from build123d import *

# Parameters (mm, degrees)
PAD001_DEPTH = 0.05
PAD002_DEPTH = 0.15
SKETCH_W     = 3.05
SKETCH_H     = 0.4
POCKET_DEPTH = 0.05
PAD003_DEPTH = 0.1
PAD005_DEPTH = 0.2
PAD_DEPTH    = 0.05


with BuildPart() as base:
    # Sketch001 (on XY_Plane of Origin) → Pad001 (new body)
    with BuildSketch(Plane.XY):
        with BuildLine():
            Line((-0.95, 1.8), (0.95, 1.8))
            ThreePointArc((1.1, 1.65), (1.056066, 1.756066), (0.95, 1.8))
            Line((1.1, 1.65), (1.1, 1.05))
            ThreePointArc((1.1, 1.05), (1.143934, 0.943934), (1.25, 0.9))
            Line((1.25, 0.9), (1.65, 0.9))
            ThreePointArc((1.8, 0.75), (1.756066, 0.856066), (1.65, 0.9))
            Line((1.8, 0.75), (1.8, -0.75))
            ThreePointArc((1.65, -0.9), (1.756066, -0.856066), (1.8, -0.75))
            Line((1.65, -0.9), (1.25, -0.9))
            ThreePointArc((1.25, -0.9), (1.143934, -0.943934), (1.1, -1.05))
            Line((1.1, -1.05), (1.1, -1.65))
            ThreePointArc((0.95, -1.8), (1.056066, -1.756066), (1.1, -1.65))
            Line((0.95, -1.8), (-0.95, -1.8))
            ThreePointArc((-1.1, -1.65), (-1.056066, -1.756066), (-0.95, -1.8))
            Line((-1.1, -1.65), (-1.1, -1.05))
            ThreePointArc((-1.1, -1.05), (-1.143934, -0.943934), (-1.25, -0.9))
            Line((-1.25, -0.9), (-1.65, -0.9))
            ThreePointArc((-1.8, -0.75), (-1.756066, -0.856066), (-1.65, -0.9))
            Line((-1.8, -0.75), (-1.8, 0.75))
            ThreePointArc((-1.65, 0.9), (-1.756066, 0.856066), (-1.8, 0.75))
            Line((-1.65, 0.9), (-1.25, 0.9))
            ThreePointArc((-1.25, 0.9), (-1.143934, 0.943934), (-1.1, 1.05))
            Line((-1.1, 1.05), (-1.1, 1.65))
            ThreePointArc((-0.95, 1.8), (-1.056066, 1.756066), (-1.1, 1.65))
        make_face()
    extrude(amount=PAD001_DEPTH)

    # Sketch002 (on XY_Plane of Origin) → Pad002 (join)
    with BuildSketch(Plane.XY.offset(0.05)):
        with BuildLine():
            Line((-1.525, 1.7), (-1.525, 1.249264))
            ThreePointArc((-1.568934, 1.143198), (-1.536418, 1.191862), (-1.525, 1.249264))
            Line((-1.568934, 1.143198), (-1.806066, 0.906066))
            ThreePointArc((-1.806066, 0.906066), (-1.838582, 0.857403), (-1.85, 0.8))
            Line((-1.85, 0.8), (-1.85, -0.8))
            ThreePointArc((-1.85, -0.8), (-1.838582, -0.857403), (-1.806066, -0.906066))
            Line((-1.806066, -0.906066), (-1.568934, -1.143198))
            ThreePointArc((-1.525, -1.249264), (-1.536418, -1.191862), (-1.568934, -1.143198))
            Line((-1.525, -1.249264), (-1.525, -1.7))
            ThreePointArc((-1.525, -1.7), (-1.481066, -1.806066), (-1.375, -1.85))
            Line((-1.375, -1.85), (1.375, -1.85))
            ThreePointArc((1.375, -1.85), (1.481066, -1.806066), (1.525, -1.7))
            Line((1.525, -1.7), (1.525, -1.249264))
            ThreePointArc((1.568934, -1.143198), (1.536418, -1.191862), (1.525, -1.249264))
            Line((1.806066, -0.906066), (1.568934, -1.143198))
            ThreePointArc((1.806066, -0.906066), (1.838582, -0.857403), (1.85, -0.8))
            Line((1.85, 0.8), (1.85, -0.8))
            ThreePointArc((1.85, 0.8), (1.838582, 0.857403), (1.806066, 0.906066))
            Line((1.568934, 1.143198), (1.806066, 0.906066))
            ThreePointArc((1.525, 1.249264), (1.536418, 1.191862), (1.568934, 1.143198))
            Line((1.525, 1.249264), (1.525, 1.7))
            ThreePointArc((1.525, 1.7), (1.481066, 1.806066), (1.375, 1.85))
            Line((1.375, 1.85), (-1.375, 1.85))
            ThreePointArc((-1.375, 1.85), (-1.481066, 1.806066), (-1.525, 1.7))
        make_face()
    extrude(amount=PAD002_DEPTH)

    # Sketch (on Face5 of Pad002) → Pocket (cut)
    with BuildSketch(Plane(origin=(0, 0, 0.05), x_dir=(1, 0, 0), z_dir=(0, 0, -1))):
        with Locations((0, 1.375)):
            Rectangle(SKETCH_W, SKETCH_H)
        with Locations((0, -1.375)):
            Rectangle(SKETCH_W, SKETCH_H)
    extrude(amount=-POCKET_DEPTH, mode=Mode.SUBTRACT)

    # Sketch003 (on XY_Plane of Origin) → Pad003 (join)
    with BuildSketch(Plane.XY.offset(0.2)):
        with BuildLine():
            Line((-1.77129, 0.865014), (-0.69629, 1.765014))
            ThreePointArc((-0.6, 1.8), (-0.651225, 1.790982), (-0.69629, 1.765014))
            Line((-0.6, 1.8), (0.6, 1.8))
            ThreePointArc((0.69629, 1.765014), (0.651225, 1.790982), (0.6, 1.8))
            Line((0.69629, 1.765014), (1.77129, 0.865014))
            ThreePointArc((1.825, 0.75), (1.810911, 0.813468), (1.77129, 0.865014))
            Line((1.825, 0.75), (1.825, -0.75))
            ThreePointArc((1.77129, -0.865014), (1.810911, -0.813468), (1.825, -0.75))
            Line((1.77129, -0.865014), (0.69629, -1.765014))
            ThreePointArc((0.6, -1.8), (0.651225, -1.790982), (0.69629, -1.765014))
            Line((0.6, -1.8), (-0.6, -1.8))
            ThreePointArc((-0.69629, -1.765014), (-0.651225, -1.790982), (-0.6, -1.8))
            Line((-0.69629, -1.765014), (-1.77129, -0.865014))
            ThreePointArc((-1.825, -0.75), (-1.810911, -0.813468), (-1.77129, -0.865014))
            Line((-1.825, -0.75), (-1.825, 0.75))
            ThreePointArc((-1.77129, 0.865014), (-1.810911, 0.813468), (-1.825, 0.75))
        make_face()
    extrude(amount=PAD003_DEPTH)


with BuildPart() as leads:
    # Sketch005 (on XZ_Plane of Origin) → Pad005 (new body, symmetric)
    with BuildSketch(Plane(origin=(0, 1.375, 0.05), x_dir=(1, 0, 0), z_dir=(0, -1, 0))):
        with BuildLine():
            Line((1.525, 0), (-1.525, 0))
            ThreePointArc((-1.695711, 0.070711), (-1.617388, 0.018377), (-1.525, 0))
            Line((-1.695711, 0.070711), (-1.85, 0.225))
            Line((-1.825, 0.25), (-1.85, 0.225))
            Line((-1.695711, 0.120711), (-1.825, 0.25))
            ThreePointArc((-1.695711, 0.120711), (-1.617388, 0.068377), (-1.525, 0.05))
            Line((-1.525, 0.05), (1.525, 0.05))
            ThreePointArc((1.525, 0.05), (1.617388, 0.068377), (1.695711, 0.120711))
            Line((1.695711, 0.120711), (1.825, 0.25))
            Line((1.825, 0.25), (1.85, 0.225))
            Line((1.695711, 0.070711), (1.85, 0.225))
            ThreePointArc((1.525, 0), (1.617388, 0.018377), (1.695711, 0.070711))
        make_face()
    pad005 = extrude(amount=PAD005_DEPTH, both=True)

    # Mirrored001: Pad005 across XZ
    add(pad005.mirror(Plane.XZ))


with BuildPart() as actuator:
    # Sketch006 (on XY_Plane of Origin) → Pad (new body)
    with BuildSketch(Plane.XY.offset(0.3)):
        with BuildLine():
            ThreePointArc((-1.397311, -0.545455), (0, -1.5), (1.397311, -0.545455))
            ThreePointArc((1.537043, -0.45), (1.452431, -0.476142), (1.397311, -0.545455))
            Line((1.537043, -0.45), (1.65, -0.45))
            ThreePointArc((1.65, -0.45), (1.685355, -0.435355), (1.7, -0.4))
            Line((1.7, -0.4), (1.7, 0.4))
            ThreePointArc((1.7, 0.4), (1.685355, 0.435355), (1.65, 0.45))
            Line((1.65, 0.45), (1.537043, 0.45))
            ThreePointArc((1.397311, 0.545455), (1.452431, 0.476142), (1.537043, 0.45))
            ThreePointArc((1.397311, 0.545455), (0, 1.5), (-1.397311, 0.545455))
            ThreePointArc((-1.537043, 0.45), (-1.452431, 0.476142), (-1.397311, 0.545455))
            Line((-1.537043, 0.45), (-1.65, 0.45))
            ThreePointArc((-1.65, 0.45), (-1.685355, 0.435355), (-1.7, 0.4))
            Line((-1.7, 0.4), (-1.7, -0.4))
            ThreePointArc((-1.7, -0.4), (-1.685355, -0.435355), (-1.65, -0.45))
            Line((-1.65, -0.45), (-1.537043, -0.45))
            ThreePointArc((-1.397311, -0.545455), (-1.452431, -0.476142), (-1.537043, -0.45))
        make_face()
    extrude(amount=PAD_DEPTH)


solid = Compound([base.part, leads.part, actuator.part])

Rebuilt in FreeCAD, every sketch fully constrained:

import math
import FreeCAD as App
import Part
import Sketcher

V = App.Vector


def add_polygon(sketch, points):
    """Adds a closed chain of lines whose ends are joined by coincident constraints."""
    first, n = sketch.GeometryCount, len(points)
    for a, b in zip(points, points[1:] + points[:1]):
        sketch.addGeometry(Part.LineSegment(App.Vector(*a, 0), App.Vector(*b, 0)), False)
    for i in range(n):
        sketch.addConstraint(Sketcher.Constraint("Coincident", first + i, 2, first + (i + 1) % n, 1))

doc = App.newDocument("Part")
params = doc.addObject("Spreadsheet::Sheet", "Params")
for row, (alias, value) in enumerate([
    ("sketch1_radius", "0.15 mm"),
    ("sketch1_width", "1.9 mm"),
    ("sketch1_width2", "0.4 mm"),
    ("sketch1_height", "0.6 mm"),
    ("sketch1_height2", "1.5 mm"),
    ("pad1_length", "0.05 mm"),
    ("sketch2_radius", "0.150001 mm"),
    ("sketch2_height", "1.6 mm"),
    ("sketch2_width", "2.75 mm"),
    ("pad2_length", "0.15 mm"),
    ("sketch3_height", "0.4 mm"),
    ("sketch3_width", "3.05 mm"),
    ("pocket1_length", "0.05 mm"),
    ("sketch4_radius", "0.15 mm"),
    ("sketch4_width", "1.2 mm"),
    ("sketch4_height", "1.5 mm"),
    ("pad3_length", "0.1 mm"),
    ("sketch5_width", "3.05 mm"),
    ("pad4_length", "0.4 mm"),
    ("sketch6_radius", "1.5 mm"),
    ("sketch6_radius2", "0.150002 mm"),
    ("sketch6_radius3", "0.050001 mm"),
    ("sketch6_height", "0.8 mm"),
    ("pad5_length", "0.05 mm"),
], start=1):
    params.set(f"A{row}", alias)
    params.set(f"B{row}", "=" + value)
    params.setAlias(f"B{row}", alias)

body = doc.addObject("PartDesign::Body", "Body")

sketch1 = body.newObject("Sketcher::SketchObject", "Sketch")
sketch1.AttachmentSupport = (doc.getObject("XY_Plane"), [""])
sketch1.MapMode = "FlatFace"
sketch1.addGeometry([
    Part.LineSegment(V(0.95, 1.8, 0), V(-0.95, 1.8, 0)),
    Part.ArcOfCircle(Part.Circle(V(-0.95, 1.65, 0), V(0, 0, 1), 0.15), math.radians(90.000023), math.radians(179.999977)),
    Part.LineSegment(V(-1.1, 1.65, 0), V(-1.1, 1.05, 0)),
    Part.ArcOfCircle(Part.Circle(V(-1.25, 1.05, 0), V(0, 0, 1), 0.15), math.radians(-89.999977), math.radians(-0.000023)),
    Part.LineSegment(V(-1.25, 0.9, 0), V(-1.65, 0.9, 0)),
    Part.ArcOfCircle(Part.Circle(V(-1.65, 0.75, 0), V(0, 0, 1), 0.15), math.radians(90.000023), math.radians(179.999977)),
    Part.LineSegment(V(-1.8, 0.75, 0), V(-1.8, -0.75, 0)),
    Part.ArcOfCircle(Part.Circle(V(-1.65, -0.75, 0), V(0, 0, 1), 0.15), math.radians(-179.999977), math.radians(-90.000023)),
    Part.LineSegment(V(-1.65, -0.9, 0), V(-1.25, -0.9, 0)),
    Part.ArcOfCircle(Part.Circle(V(-1.25, -1.05, 0), V(0, 0, 1), 0.15), math.radians(0.000023), math.radians(89.999977)),
    Part.LineSegment(V(-1.1, -1.05, 0), V(-1.1, -1.65, 0)),
    Part.ArcOfCircle(Part.Circle(V(-0.95, -1.65, 0), V(0, 0, 1), 0.15), math.radians(-179.999977), math.radians(-90.000023)),
    Part.LineSegment(V(-0.95, -1.8, 0), V(0.95, -1.8, 0)),
    Part.ArcOfCircle(Part.Circle(V(0.95, -1.65, 0), V(0, 0, 1), 0.15), math.radians(-89.999977), math.radians(-0.000023)),
    Part.LineSegment(V(1.1, -1.65, 0), V(1.1, -1.05, 0)),
    Part.ArcOfCircle(Part.Circle(V(1.25, -1.05, 0), V(0, 0, 1), 0.15), math.radians(90.000023), math.radians(179.999977)),
    Part.LineSegment(V(1.25, -0.9, 0), V(1.65, -0.9, 0)),
    Part.ArcOfCircle(Part.Circle(V(1.65, -0.75, 0), V(0, 0, 1), 0.15), math.radians(-89.999977), math.radians(-0.000023)),
    Part.LineSegment(V(1.8, -0.75, 0), V(1.8, 0.75, 0)),
    Part.ArcOfCircle(Part.Circle(V(1.65, 0.75, 0), V(0, 0, 1), 0.15), math.radians(0.000023), math.radians(89.999977)),
    Part.LineSegment(V(1.65, 0.9, 0), V(1.25, 0.9, 0)),
    Part.ArcOfCircle(Part.Circle(V(1.25, 1.05, 0), V(0, 0, 1), 0.15), math.radians(-179.999977), math.radians(-90.000023)),
    Part.LineSegment(V(1.1, 1.05, 0), V(1.1, 1.65, 0)),
    Part.ArcOfCircle(Part.Circle(V(0.95, 1.65, 0), V(0, 0, 1), 0.15), math.radians(0.000023), math.radians(89.999977)),
], False)
sketch1.addConstraint([
    Sketcher.Constraint("Tangent", 0, 2, 1, 1),
    Sketcher.Constraint("Tangent", 1, 2, 2, 1),
    Sketcher.Constraint("Tangent", 2, 2, 3, 2),
    Sketcher.Constraint("Tangent", 3, 1, 4, 1),
    Sketcher.Constraint("Tangent", 4, 2, 5, 1),
    Sketcher.Constraint("Tangent", 5, 2, 6, 1),
    Sketcher.Constraint("Tangent", 6, 2, 7, 1),
    Sketcher.Constraint("Tangent", 7, 2, 8, 1),
    Sketcher.Constraint("Tangent", 8, 2, 9, 2),
    Sketcher.Constraint("Tangent", 9, 1, 10, 1),
    Sketcher.Constraint("Tangent", 10, 2, 11, 1),
    Sketcher.Constraint("Tangent", 11, 2, 12, 1),
    Sketcher.Constraint("Tangent", 12, 2, 13, 1),
    Sketcher.Constraint("Tangent", 13, 2, 14, 1),
    Sketcher.Constraint("Tangent", 14, 2, 15, 2),
    Sketcher.Constraint("Tangent", 15, 1, 16, 1),
    Sketcher.Constraint("Tangent", 16, 2, 17, 1),
    Sketcher.Constraint("Tangent", 17, 2, 18, 1),
    Sketcher.Constraint("Tangent", 18, 2, 19, 1),
    Sketcher.Constraint("Tangent", 19, 2, 20, 1),
    Sketcher.Constraint("Tangent", 20, 2, 21, 2),
    Sketcher.Constraint("Tangent", 21, 1, 22, 1),
    Sketcher.Constraint("Tangent", 22, 2, 23, 1),
    Sketcher.Constraint("Tangent", 23, 2, 0, 1),
    Sketcher.Constraint("Horizontal", 0),
    Sketcher.Constraint("Vertical", 2),
    Sketcher.Constraint("Horizontal", 4),
    Sketcher.Constraint("Vertical", 6),
    Sketcher.Constraint("Horizontal", 8),
    Sketcher.Constraint("Vertical", 10),
    Sketcher.Constraint("Horizontal", 12),
    Sketcher.Constraint("Vertical", 14),
    Sketcher.Constraint("Horizontal", 16),
    Sketcher.Constraint("Vertical", 18),
    Sketcher.Constraint("Horizontal", 20),
    Sketcher.Constraint("Vertical", 22),
    Sketcher.Constraint("Equal", 1, 3),
    Sketcher.Constraint("Equal", 3, 5),
    Sketcher.Constraint("Equal", 5, 7),
    Sketcher.Constraint("Equal", 7, 9),
    Sketcher.Constraint("Equal", 9, 11),
    Sketcher.Constraint("Equal", 11, 13),
    Sketcher.Constraint("Equal", 13, 15),
    Sketcher.Constraint("Equal", 15, 17),
    Sketcher.Constraint("Equal", 17, 19),
    Sketcher.Constraint("Equal", 19, 21),
    Sketcher.Constraint("Equal", 21, 23),
    Sketcher.Constraint("Symmetric", 1, 3, 13, 3, -1, 1),
    Sketcher.Constraint("Symmetric", 5, 3, 17, 3, -1, 1),
    Sketcher.Constraint("Symmetric", 9, 3, 21, 3, -1, 1),
    Sketcher.Constraint("Symmetric", 9, 3, 15, 3, -2),
    Sketcher.Constraint("Radius", 1, 0.15),
    Sketcher.Constraint("DistanceX", 0, 2, 0, 1, 1.9),
    Sketcher.Constraint("DistanceX", 4, 2, 4, 1, 0.4),
    Sketcher.Constraint("DistanceY", 2, 2, 2, 1, 0.6),
    Sketcher.Constraint("DistanceY", 6, 2, 6, 1, 1.5),
])
sketch1.setExpression("Constraints[51]", "Params.sketch1_radius")
sketch1.setExpression("Constraints[52]", "Params.sketch1_width")
sketch1.setExpression("Constraints[53]", "Params.sketch1_width2")
sketch1.setExpression("Constraints[54]", "Params.sketch1_height")
sketch1.setExpression("Constraints[55]", "Params.sketch1_height2")
pad1 = body.newObject("PartDesign::Pad", "Pad")
pad1.Profile = sketch1
pad1.setExpression("Length", "Params.pad1_length")

sketch2 = body.newObject("Sketcher::SketchObject", "Sketch001")
sketch2.AttachmentSupport = (doc.getObject("XY_Plane"), [""])
sketch2.MapMode = "FlatFace"
sketch2.AttachmentOffset = App.Placement(V(0, 0, 0.05), App.Rotation())
sketch2.addGeometry([
    Part.LineSegment(V(-1.525, 1.7, 0), V(-1.525, 1.249264, 0)),
    Part.ArcOfCircle(Part.Circle(V(-1.675001, 1.249265, 0), V(0, 0, 1), 0.150001), math.radians(-44.999781), math.radians(-0.000242)),
    Part.LineSegment(V(-1.568934, 1.143198, 0), V(-1.806066, 0.906066, 0)),
    Part.ArcOfCircle(Part.Circle(V(-1.700003, 0.800001, 0), V(0, 0, 1), 0.149997), math.radians(134.999485), math.radians(180.000493)),
    Part.LineSegment(V(-1.85, 0.8, 0), V(-1.85, -0.8, 0)),
    Part.ArcOfCircle(Part.Circle(V(-1.700003, -0.800001, 0), V(0, 0, 1), 0.149997), math.radians(179.999507), math.radians(225.000515)),
    Part.LineSegment(V(-1.806066, -0.906066, 0), V(-1.568934, -1.143198, 0)),
    Part.ArcOfCircle(Part.Circle(V(-1.675001, -1.249265, 0), V(0, 0, 1), 0.150001), math.radians(0.000242), math.radians(44.999781)),
    Part.LineSegment(V(-1.525, -1.249264, 0), V(-1.525, -1.7, 0)),
    Part.ArcOfCircle(Part.Circle(V(-1.375, -1.7, 0), V(0, 0, 1), 0.15), math.radians(-179.999977), math.radians(-90.000023)),
    Part.LineSegment(V(-1.375, -1.85, 0), V(1.375, -1.85, 0)),
    Part.ArcOfCircle(Part.Circle(V(1.375, -1.7, 0), V(0, 0, 1), 0.15), math.radians(-89.999977), math.radians(-0.000023)),
    Part.LineSegment(V(1.525, -1.7, 0), V(1.525, -1.249264, 0)),
    Part.ArcOfCircle(Part.Circle(V(1.675001, -1.249265, 0), V(0, 0, 1), 0.150001), math.radians(135.000219), math.radians(179.999758)),
    Part.LineSegment(V(1.568934, -1.143198, 0), V(1.806066, -0.906066, 0)),
    Part.ArcOfCircle(Part.Circle(V(1.700003, -0.800001, 0), V(0, 0, 1), 0.149997), math.radians(-45.000515), math.radians(0.000493)),
    Part.LineSegment(V(1.85, -0.8, 0), V(1.85, 0.8, 0)),
    Part.ArcOfCircle(Part.Circle(V(1.700003, 0.800001, 0), V(0, 0, 1), 0.149997), math.radians(-0.000493), math.radians(45.000515)),
    Part.LineSegment(V(1.806066, 0.906066, 0), V(1.568934, 1.143198, 0)),
    Part.ArcOfCircle(Part.Circle(V(1.675001, 1.249265, 0), V(0, 0, 1), 0.150001), math.radians(-179.999758), math.radians(-135.000219)),
    Part.LineSegment(V(1.525, 1.249264, 0), V(1.525, 1.7, 0)),
    Part.ArcOfCircle(Part.Circle(V(1.375, 1.7, 0), V(0, 0, 1), 0.15), math.radians(0.000023), math.radians(89.999977)),
    Part.LineSegment(V(1.375, 1.85, 0), V(-1.375, 1.85, 0)),
    Part.ArcOfCircle(Part.Circle(V(-1.375, 1.7, 0), V(0, 0, 1), 0.15), math.radians(90.000023), math.radians(179.999977)),
], False)
sketch2.addConstraint([
    Sketcher.Constraint("Coincident", 0, 2, 1, 2),
    Sketcher.Constraint("Coincident", 1, 1, 2, 1),
    Sketcher.Constraint("Coincident", 2, 2, 3, 1),
    Sketcher.Constraint("Coincident", 3, 2, 4, 1),
    Sketcher.Constraint("Coincident", 4, 2, 5, 1),
    Sketcher.Constraint("Coincident", 5, 2, 6, 1),
    Sketcher.Constraint("Coincident", 6, 2, 7, 2),
    Sketcher.Constraint("Coincident", 7, 1, 8, 1),
    Sketcher.Constraint("Tangent", 8, 2, 9, 1),
    Sketcher.Constraint("Tangent", 9, 2, 10, 1),
    Sketcher.Constraint("Tangent", 10, 2, 11, 1),
    Sketcher.Constraint("Tangent", 11, 2, 12, 1),
    Sketcher.Constraint("Coincident", 12, 2, 13, 2),
    Sketcher.Constraint("Coincident", 13, 1, 14, 1),
    Sketcher.Constraint("Coincident", 14, 2, 15, 1),
    Sketcher.Constraint("Coincident", 15, 2, 16, 1),
    Sketcher.Constraint("Coincident", 16, 2, 17, 1),
    Sketcher.Constraint("Coincident", 17, 2, 18, 1),
    Sketcher.Constraint("Coincident", 18, 2, 19, 2),
    Sketcher.Constraint("Coincident", 19, 1, 20, 1),
    Sketcher.Constraint("Tangent", 20, 2, 21, 1),
    Sketcher.Constraint("Tangent", 21, 2, 22, 1),
    Sketcher.Constraint("Tangent", 22, 2, 23, 1),
    Sketcher.Constraint("Tangent", 23, 2, 0, 1),
    Sketcher.Constraint("Vertical", 0),
    Sketcher.Constraint("Vertical", 4),
    Sketcher.Constraint("Vertical", 8),
    Sketcher.Constraint("Horizontal", 10),
    Sketcher.Constraint("Vertical", 12),
    Sketcher.Constraint("Vertical", 16),
    Sketcher.Constraint("Vertical", 20),
    Sketcher.Constraint("Horizontal", 22),
    Sketcher.Constraint("Equal", 3, 5),
    Sketcher.Constraint("Equal", 1, 7),
    Sketcher.Constraint("Equal", 7, 9),
    Sketcher.Constraint("Equal", 9, 11),
    Sketcher.Constraint("Equal", 11, 13),
    Sketcher.Constraint("Equal", 5, 15),
    Sketcher.Constraint("Equal", 15, 17),
    Sketcher.Constraint("Equal", 13, 19),
    Sketcher.Constraint("Equal", 19, 21),
    Sketcher.Constraint("Equal", 21, 23),
    Sketcher.Constraint("Symmetric", 1, 3, 13, 3, -1, 1),
    Sketcher.Constraint("Symmetric", 3, 3, 15, 3, -1, 1),
    Sketcher.Constraint("Symmetric", 7, 3, 19, 3, -1, 1),
    Sketcher.Constraint("Symmetric", 5, 2, 17, 2, -1, 1),
    Sketcher.Constraint("Symmetric", 7, 3, 13, 3, -2),
    Sketcher.Constraint("Symmetric", 5, 2, 14, 2, -2),
    Sketcher.Constraint("Perpendicular", 2, 6),
    Sketcher.Constraint("Horizontal", 19, 3, 0, 2),
    Sketcher.Constraint("Horizontal", 17, 3, 3, 2),
    Sketcher.Constraint("Horizontal", 15, 3, 4, 2),
    Sketcher.Constraint("Horizontal", 13, 3, 7, 1),
    Sketcher.Constraint("Horizontal", 7, 1, 12, 2),
    Sketcher.Constraint("Horizontal", 6, 2, 13, 1),
    Sketcher.Constraint("Horizontal", 4, 2, 15, 2),
    Sketcher.Constraint("Horizontal", 3, 2, 16, 2),
    Sketcher.Constraint("Horizontal", 2, 2, 17, 2),
    Sketcher.Constraint("Horizontal", 1, 1, 18, 2),
    Sketcher.Constraint("Horizontal", 0, 2, 19, 1),
    Sketcher.Constraint("Vertical", 1, 1, 6, 2),
    Sketcher.Constraint("Equal", 0, 8),
    Sketcher.Constraint("Radius", 1, 0.150001),
    Sketcher.Constraint("DistanceY", 4, 2, 4, 1, 1.6),
    Sketcher.Constraint("DistanceX", 10, 1, 10, 2, 2.75),
    Sketcher.Constraint("DistanceY", 9, 3, -1, 1, 1.7),
    Sketcher.Constraint("DistanceX", 3, 2, -1, 1, 1.85),
    Sketcher.Constraint("Radius", 3, 0.149997),
    Sketcher.Constraint("DistanceY", -1, 1, 1, 1, 1.143198),
    Sketcher.Constraint("DistanceY", 2, 2, 1, 3, 0.343199),
])
sketch2.setExpression("Constraints[62]", "Params.sketch2_radius")
sketch2.setExpression("Constraints[63]", "Params.sketch2_height")
sketch2.setExpression("Constraints[64]", "Params.sketch2_width")
pad2 = body.newObject("PartDesign::Pad", "Pad001")
pad2.Profile = sketch2
pad2.setExpression("Length", "Params.pad2_length")

sketch3 = body.newObject("Sketcher::SketchObject", "Sketch002")
sketch3.AttachmentSupport = (doc.getObject("XY_Plane"), [""])
sketch3.MapMode = "FlatFace"
sketch3.AttachmentOffset = App.Placement(V(0, 0, 0.05), App.Rotation())
add_polygon(sketch3, [(-1.525, -1.575), (-1.525, -1.175), (1.525, -1.175), (1.525, -1.575)])
add_polygon(sketch3, [(-1.525, 1.175), (-1.525, 1.575), (1.525, 1.575), (1.525, 1.175)])
sketch3.addConstraint([
    Sketcher.Constraint("Vertical", 0),
    Sketcher.Constraint("Horizontal", 1),
    Sketcher.Constraint("Vertical", 2),
    Sketcher.Constraint("Horizontal", 3),
    Sketcher.Constraint("Vertical", 4),
    Sketcher.Constraint("Horizontal", 5),
    Sketcher.Constraint("Vertical", 6),
    Sketcher.Constraint("Horizontal", 7),
    Sketcher.Constraint("Symmetric", 2, 2, 4, 2, -1, 1),
    Sketcher.Constraint("Symmetric", 0, 2, 6, 2, -1, 1),
    Sketcher.Constraint("Vertical", 3, 2, 4, 2),
    Sketcher.Constraint("DistanceY", 0, 1, 0, 2, 0.4),
    Sketcher.Constraint("DistanceX", 1, 1, 1, 2, 3.05),
    Sketcher.Constraint("DistanceY", 0, 2, 4, 2, 2.75),
])
sketch3.setExpression("Constraints[19]", "Params.sketch3_height")
sketch3.setExpression("Constraints[20]", "Params.sketch3_width")
pocket1 = body.newObject("PartDesign::Pocket", "Pocket")
pocket1.Profile = sketch3
pocket1.setExpression("Length", "Params.pocket1_length")
pocket1.Reversed = True

sketch4 = body.newObject("Sketcher::SketchObject", "Sketch003")
sketch4.AttachmentSupport = (doc.getObject("XY_Plane"), [""])
sketch4.MapMode = "FlatFace"
sketch4.AttachmentOffset = App.Placement(V(0, 0, 0.2), App.Rotation())
sketch4.addGeometry([
    Part.LineSegment(V(-0.69629, 1.765014, 0), V(-1.77129, 0.865014, 0)),
    Part.ArcOfCircle(Part.Circle(V(-1.675, 0.75, 0), V(0, 0, 1), 0.15), math.radians(129.93616), math.radians(179.999949)),
    Part.LineSegment(V(-1.825, 0.75, 0), V(-1.825, -0.75, 0)),
    Part.ArcOfCircle(Part.Circle(V(-1.675, -0.75, 0), V(0, 0, 1), 0.15), math.radians(-179.999949), math.radians(-129.93616)),
    Part.LineSegment(V(-1.77129, -0.865014, 0), V(-0.69629, -1.765014, 0)),
    Part.ArcOfCircle(Part.Circle(V(-0.599999, -1.649997, 0), V(0, 0, 1), 0.150003), math.radians(-129.935693), math.radians(-90.000513)),
    Part.LineSegment(V(-0.6, -1.8, 0), V(0.6, -1.8, 0)),
    Part.ArcOfCircle(Part.Circle(V(0.599999, -1.649997, 0), V(0, 0, 1), 0.150003), math.radians(-89.999487), math.radians(-50.064307)),
    Part.LineSegment(V(0.69629, -1.765014, 0), V(1.77129, -0.865014, 0)),
    Part.ArcOfCircle(Part.Circle(V(1.675, -0.75, 0), V(0, 0, 1), 0.15), math.radians(-50.06384), math.radians(-0.000051)),
    Part.LineSegment(V(1.825, -0.75, 0), V(1.825, 0.75, 0)),
    Part.ArcOfCircle(Part.Circle(V(1.675, 0.75, 0), V(0, 0, 1), 0.15), math.radians(0.000051), math.radians(50.06384)),
    Part.LineSegment(V(1.77129, 0.865014, 0), V(0.69629, 1.765014, 0)),
    Part.ArcOfCircle(Part.Circle(V(0.599999, 1.649997, 0), V(0, 0, 1), 0.150003), math.radians(50.064307), math.radians(89.999487)),
    Part.LineSegment(V(0.6, 1.8, 0), V(-0.6, 1.8, 0)),
    Part.ArcOfCircle(Part.Circle(V(-0.599999, 1.649997, 0), V(0, 0, 1), 0.150003), math.radians(90.000513), math.radians(129.935693)),
], False)
sketch4.addConstraint([
    Sketcher.Constraint("Coincident", 0, 2, 1, 1),
    Sketcher.Constraint("Tangent", 1, 2, 2, 1),
    Sketcher.Constraint("Tangent", 2, 2, 3, 1),
    Sketcher.Constraint("Coincident", 3, 2, 4, 1),
    Sketcher.Constraint("Coincident", 4, 2, 5, 1),
    Sketcher.Constraint("Coincident", 5, 2, 6, 1),
    Sketcher.Constraint("Coincident", 6, 2, 7, 1),
    Sketcher.Constraint("Coincident", 7, 2, 8, 1),
    Sketcher.Constraint("Coincident", 8, 2, 9, 1),
    Sketcher.Constraint("Tangent", 9, 2, 10, 1),
    Sketcher.Constraint("Tangent", 10, 2, 11, 1),
    Sketcher.Constraint("Coincident", 11, 2, 12, 1),
    Sketcher.Constraint("Coincident", 12, 2, 13, 1),
    Sketcher.Constraint("Coincident", 13, 2, 14, 1),
    Sketcher.Constraint("Coincident", 14, 2, 15, 1),
    Sketcher.Constraint("Coincident", 15, 2, 0, 1),
    Sketcher.Constraint("Vertical", 2),
    Sketcher.Constraint("Horizontal", 6),
    Sketcher.Constraint("Vertical", 10),
    Sketcher.Constraint("Horizontal", 14),
    Sketcher.Constraint("Equal", 1, 3),
    Sketcher.Constraint("Equal", 5, 7),
    Sketcher.Constraint("Equal", 3, 9),
    Sketcher.Constraint("Equal", 9, 11),
    Sketcher.Constraint("Equal", 7, 13),
    Sketcher.Constraint("Equal", 13, 15),
    Sketcher.Constraint("Symmetric", 1, 3, 9, 3, -1, 1),
    Sketcher.Constraint("Symmetric", 5, 3, 13, 3, -1, 1),
    Sketcher.Constraint("Symmetric", 3, 2, 11, 2, -1, 1),
    Sketcher.Constraint("Symmetric", 7, 2, 15, 2, -1, 1),
    Sketcher.Constraint("Symmetric", 4, 2, 7, 2, -2),
    Sketcher.Constraint("Symmetric", 3, 2, 8, 2, -2),
    Sketcher.Constraint("Horizontal", 0, 2, 11, 2),
    Sketcher.Constraint("Horizontal", 12, 2, 15, 2),
    Sketcher.Constraint("Vertical", 15, 3, 5, 2),
    Sketcher.Constraint("Vertical", 13, 3, 6, 2),
    Sketcher.Constraint("Vertical", 6, 2, 13, 2),
    Sketcher.Constraint("Vertical", 5, 2, 14, 2),
    Sketcher.Constraint("Radius", 1, 0.15),
    Sketcher.Constraint("DistanceX", 6, 1, 6, 2, 1.2),
    Sketcher.Constraint("DistanceY", 2, 2, 2, 1, 1.5),
    Sketcher.Constraint("DistanceY", 5, 2, -1, 1, 1.8),
    Sketcher.Constraint("DistanceY", 4, 2, 3, 2, 0.9),
    Sketcher.Constraint("DistanceX", 3, 3, 9, 3, 3.35),
    Sketcher.Constraint("Radius", 5, 0.150003),
    Sketcher.Constraint("DistanceX", 0, 2, -1, 1, 1.77129),
])
sketch4.setExpression("Constraints[38]", "Params.sketch4_radius")
sketch4.setExpression("Constraints[39]", "Params.sketch4_width")
sketch4.setExpression("Constraints[40]", "Params.sketch4_height")
pad3 = body.newObject("PartDesign::Pad", "Pad002")
pad3.Profile = sketch4
pad3.setExpression("Length", "Params.pad3_length")
body2 = doc.addObject("PartDesign::Body", "Body001")
body2.AllowCompound = True

sketch5 = body2.newObject("Sketcher::SketchObject", "Sketch004")
sketch5.AttachmentSupport = (doc.getObject("XZ_Plane001"), [""])
sketch5.MapMode = "FlatFace"
sketch5.AttachmentOffset = App.Placement(V(0, 0, -1.375), App.Rotation())
sketch5.addGeometry([
    Part.LineSegment(V(-1.525, 0.05, 0), V(1.525, 0.05, 0)),
    Part.ArcOfCircle(Part.Circle(V(1.525001, 0.29142, 0), V(0, 0, 1), 0.24142), math.radians(-90.000139), math.radians(-44.999753)),
    Part.LineSegment(V(1.695711, 0.120711, 0), V(1.85, 0.275, 0)),
    Part.LineSegment(V(1.85, 0.275, 0), V(1.825, 0.3, 0)),
    Part.LineSegment(V(1.825, 0.3, 0), V(1.695711, 0.170711, 0)),
    Part.ArcOfCircle(Part.Circle(V(1.525001, 0.34142, 0), V(0, 0, 1), 0.24142), math.radians(-90.000139), math.radians(-44.999753)),
    Part.LineSegment(V(1.525, 0.1, 0), V(-1.525, 0.1, 0)),
    Part.ArcOfCircle(Part.Circle(V(-1.525001, 0.34142, 0), V(0, 0, 1), 0.24142), math.radians(-135.000247), math.radians(-89.999861)),
    Part.LineSegment(V(-1.695711, 0.170711, 0), V(-1.825, 0.3, 0)),
    Part.LineSegment(V(-1.825, 0.3, 0), V(-1.85, 0.275, 0)),
    Part.LineSegment(V(-1.85, 0.275, 0), V(-1.695711, 0.120711, 0)),
    Part.ArcOfCircle(Part.Circle(V(-1.525001, 0.29142, 0), V(0, 0, 1), 0.24142), math.radians(-135.000247), math.radians(-89.999861)),
], False)
sketch5.addConstraint([
    Sketcher.Constraint("Coincident", 0, 2, 1, 1),
    Sketcher.Constraint("Coincident", 1, 2, 2, 1),
    Sketcher.Constraint("Coincident", 2, 2, 3, 1),
    Sketcher.Constraint("Coincident", 3, 2, 4, 1),
    Sketcher.Constraint("Coincident", 4, 2, 5, 2),
    Sketcher.Constraint("Coincident", 5, 1, 6, 1),
    Sketcher.Constraint("Coincident", 6, 2, 7, 2),
    Sketcher.Constraint("Coincident", 7, 1, 8, 1),
    Sketcher.Constraint("Coincident", 8, 2, 9, 1),
    Sketcher.Constraint("Coincident", 9, 2, 10, 1),
    Sketcher.Constraint("Coincident", 10, 2, 11, 1),
    Sketcher.Constraint("Coincident", 11, 2, 0, 1),
    Sketcher.Constraint("Horizontal", 0),
    Sketcher.Constraint("Horizontal", 6),
    Sketcher.Constraint("Equal", 1, 5),
    Sketcher.Constraint("Equal", 5, 7),
    Sketcher.Constraint("Equal", 7, 11),
    Sketcher.Constraint("Symmetric", 4, 2, 7, 1, -2),
    Sketcher.Constraint("Symmetric", 3, 2, 8, 2, -2),
    Sketcher.Constraint("Symmetric", 2, 2, 9, 2, -2),
    Sketcher.Constraint("Symmetric", 1, 2, 10, 2, -2),
    Sketcher.Constraint("Perpendicular", 2, 3),
    Sketcher.Constraint("Perpendicular", 3, 4),
    Sketcher.Constraint("Perpendicular", 4, 8),
    Sketcher.Constraint("Vertical", 1, 3, 5, 3),
    Sketcher.Constraint("Vertical", 5, 3, 0, 2),
    Sketcher.Constraint("Vertical", 1, 2, 4, 2),
    Sketcher.Constraint("Vertical", 0, 2, 5, 1),
    Sketcher.Constraint("Vertical", 11, 3, 6, 2),
    Sketcher.Constraint("Vertical", 6, 2, 11, 2),
    Sketcher.Constraint("DistanceX", 0, 1, 0, 2, 3.05),
    Sketcher.Constraint("DistanceY", -1, 1, 3, 2, 0.3),
    Sketcher.Constraint("DistanceY", -1, 1, 5, 1, 0.1),
    Sketcher.Constraint("DistanceX", 1, 3, 3, 2, 0.299999),
    Sketcher.Constraint("DistanceY", -1, 1, 0, 2, 0.05),
    Sketcher.Constraint("DistanceX", -1, 1, 1, 2, 1.695711),
])
sketch5.setExpression("Constraints[30]", "Params.sketch5_width")
pad4 = body2.newObject("PartDesign::Pad", "Pad003")
pad4.Profile = sketch5
pad4.setExpression("Length", "Params.pad4_length")
pad4.Midplane = True
doc.recompute()

mirrored = body2.newObject("PartDesign::Mirrored", "Mirrored")
mirrored.Originals = [pad4]
mirrored.MirrorPlane = (doc.getObject("XZ_Plane001"), [""])
body2.Tip = mirrored
body3 = doc.addObject("PartDesign::Body", "Body002")

sketch6 = body3.newObject("Sketcher::SketchObject", "Sketch005")
sketch6.AttachmentSupport = (doc.getObject("XY_Plane002"), [""])
sketch6.MapMode = "FlatFace"
sketch6.AttachmentOffset = App.Placement(V(0, 0, 0.3), App.Rotation())
sketch6.addGeometry([
    Part.ArcOfCircle(Part.Circle(V(0, 0, 0), V(0, 0, 1), 1.5), math.radians(-158.676306), math.radians(-21.323694)),
    Part.ArcOfCircle(Part.Circle(V(1.537044, -0.600002, 0), V(0, 0, 1), 0.150002), math.radians(90.000235), math.radians(158.676007)),
    Part.LineSegment(V(1.537043, -0.45, 0), V(1.65, -0.45, 0)),
    Part.ArcOfCircle(Part.Circle(V(1.649999, -0.399999, 0), V(0, 0, 1), 0.050001), math.radians(-89.998673), math.radians(-0.001327)),
    Part.LineSegment(V(1.7, -0.4, 0), V(1.7, 0.4, 0)),
    Part.ArcOfCircle(Part.Circle(V(1.649999, 0.399999, 0), V(0, 0, 1), 0.050001), math.radians(0.001327), math.radians(89.998673)),
    Part.LineSegment(V(1.65, 0.45, 0), V(1.537043, 0.45, 0)),
    Part.ArcOfCircle(Part.Circle(V(1.537044, 0.600002, 0), V(0, 0, 1), 0.150002), math.radians(-158.676007), math.radians(-90.000235)),
    Part.ArcOfCircle(Part.Circle(V(0, 0, 0), V(0, 0, 1), 1.5), math.radians(21.323694), math.radians(158.676306)),
    Part.ArcOfCircle(Part.Circle(V(-1.537044, 0.600002, 0), V(0, 0, 1), 0.150002), math.radians(-89.999765), math.radians(-21.323993)),
    Part.LineSegment(V(-1.537043, 0.45, 0), V(-1.65, 0.45, 0)),
    Part.ArcOfCircle(Part.Circle(V(-1.649999, 0.399999, 0), V(0, 0, 1), 0.050001), math.radians(90.001327), math.radians(179.998673)),
    Part.LineSegment(V(-1.7, 0.4, 0), V(-1.7, -0.4, 0)),
    Part.ArcOfCircle(Part.Circle(V(-1.649999, -0.399999, 0), V(0, 0, 1), 0.050001), math.radians(-179.998673), math.radians(-90.001327)),
    Part.LineSegment(V(-1.65, -0.45, 0), V(-1.537043, -0.45, 0)),
    Part.ArcOfCircle(Part.Circle(V(-1.537044, -0.600002, 0), V(0, 0, 1), 0.150002), math.radians(21.323993), math.radians(89.999765)),
], False)
sketch6.addConstraint([
    Sketcher.Constraint("Coincident", 0, 2, 1, 2),
    Sketcher.Constraint("Coincident", 1, 1, 2, 1),
    Sketcher.Constraint("Coincident", 2, 2, 3, 1),
    Sketcher.Constraint("Coincident", 3, 2, 4, 1),
    Sketcher.Constraint("Coincident", 4, 2, 5, 1),
    Sketcher.Constraint("Coincident", 5, 2, 6, 1),
    Sketcher.Constraint("Coincident", 6, 2, 7, 2),
    Sketcher.Constraint("Coincident", 7, 1, 8, 1),
    Sketcher.Constraint("Coincident", 8, 2, 9, 2),
    Sketcher.Constraint("Coincident", 9, 1, 10, 1),
    Sketcher.Constraint("Coincident", 10, 2, 11, 1),
    Sketcher.Constraint("Coincident", 11, 2, 12, 1),
    Sketcher.Constraint("Coincident", 12, 2, 13, 1),
    Sketcher.Constraint("Coincident", 13, 2, 14, 1),
    Sketcher.Constraint("Coincident", 14, 2, 15, 2),
    Sketcher.Constraint("Coincident", 15, 1, 0, 1),
    Sketcher.Constraint("Horizontal", 2),
    Sketcher.Constraint("Vertical", 4),
    Sketcher.Constraint("Horizontal", 6),
    Sketcher.Constraint("Horizontal", 10),
    Sketcher.Constraint("Vertical", 12),
    Sketcher.Constraint("Horizontal", 14),
    Sketcher.Constraint("Coincident", 0, 3, -1, 1),
    Sketcher.Constraint("Coincident", 8, 3, -1, 1),
    Sketcher.Constraint("Equal", 3, 5),
    Sketcher.Constraint("Equal", 1, 7),
    Sketcher.Constraint("Equal", 0, 8),
    Sketcher.Constraint("Equal", 7, 9),
    Sketcher.Constraint("Equal", 5, 11),
    Sketcher.Constraint("Equal", 11, 13),
    Sketcher.Constraint("Equal", 9, 15),
    Sketcher.Constraint("Symmetric", 3, 3, 11, 3, -1, 1),
    Sketcher.Constraint("Symmetric", 5, 2, 13, 2, -1, 1),
    Sketcher.Constraint("Symmetric", 6, 2, 9, 1, -2),
    Sketcher.Constraint("Horizontal", 13, 3, 3, 2),
    Sketcher.Constraint("Horizontal", 11, 3, 4, 2),
    Sketcher.Constraint("Horizontal", 7, 1, 8, 2),
    Sketcher.Constraint("Horizontal", 4, 2, 11, 2),
    Sketcher.Constraint("Horizontal", 3, 2, 12, 2),
    Sketcher.Constraint("Horizontal", 0, 2, 15, 1),
    Sketcher.Constraint("Vertical", 7, 3, 1, 1),
    Sketcher.Constraint("Vertical", 5, 3, 2, 2),
    Sketcher.Constraint("Vertical", 2, 2, 5, 2),
    Sketcher.Constraint("Vertical", 1, 1, 6, 2),
    Sketcher.Constraint("Vertical", 0, 2, 7, 1),
    Sketcher.Constraint("Vertical", 13, 3, 10, 2),
    Sketcher.Constraint("Vertical", 9, 1, 14, 2),
    Sketcher.Constraint("Radius", 0, 1.5),
    Sketcher.Constraint("Radius", 1, 0.150002),
    Sketcher.Constraint("Radius", 3, 0.050001),
    Sketcher.Constraint("DistanceY", 4, 1, 4, 2, 0.8),
    Sketcher.Constraint("DistanceX", -1, 1, 3, 2, 1.7),
    Sketcher.Constraint("DistanceX", -1, 1, 0, 2, 1.397311),
])
sketch6.setExpression("Constraints[47]", "Params.sketch6_radius")
sketch6.setExpression("Constraints[48]", "Params.sketch6_radius2")
sketch6.setExpression("Constraints[49]", "Params.sketch6_radius3")
sketch6.setExpression("Constraints[50]", "Params.sketch6_height")
pad5 = body3.newObject("PartDesign::Pad", "Pad004")
pad5.Profile = sketch6
pad5.setExpression("Length", "Params.pad5_length")

doc.recompute()
